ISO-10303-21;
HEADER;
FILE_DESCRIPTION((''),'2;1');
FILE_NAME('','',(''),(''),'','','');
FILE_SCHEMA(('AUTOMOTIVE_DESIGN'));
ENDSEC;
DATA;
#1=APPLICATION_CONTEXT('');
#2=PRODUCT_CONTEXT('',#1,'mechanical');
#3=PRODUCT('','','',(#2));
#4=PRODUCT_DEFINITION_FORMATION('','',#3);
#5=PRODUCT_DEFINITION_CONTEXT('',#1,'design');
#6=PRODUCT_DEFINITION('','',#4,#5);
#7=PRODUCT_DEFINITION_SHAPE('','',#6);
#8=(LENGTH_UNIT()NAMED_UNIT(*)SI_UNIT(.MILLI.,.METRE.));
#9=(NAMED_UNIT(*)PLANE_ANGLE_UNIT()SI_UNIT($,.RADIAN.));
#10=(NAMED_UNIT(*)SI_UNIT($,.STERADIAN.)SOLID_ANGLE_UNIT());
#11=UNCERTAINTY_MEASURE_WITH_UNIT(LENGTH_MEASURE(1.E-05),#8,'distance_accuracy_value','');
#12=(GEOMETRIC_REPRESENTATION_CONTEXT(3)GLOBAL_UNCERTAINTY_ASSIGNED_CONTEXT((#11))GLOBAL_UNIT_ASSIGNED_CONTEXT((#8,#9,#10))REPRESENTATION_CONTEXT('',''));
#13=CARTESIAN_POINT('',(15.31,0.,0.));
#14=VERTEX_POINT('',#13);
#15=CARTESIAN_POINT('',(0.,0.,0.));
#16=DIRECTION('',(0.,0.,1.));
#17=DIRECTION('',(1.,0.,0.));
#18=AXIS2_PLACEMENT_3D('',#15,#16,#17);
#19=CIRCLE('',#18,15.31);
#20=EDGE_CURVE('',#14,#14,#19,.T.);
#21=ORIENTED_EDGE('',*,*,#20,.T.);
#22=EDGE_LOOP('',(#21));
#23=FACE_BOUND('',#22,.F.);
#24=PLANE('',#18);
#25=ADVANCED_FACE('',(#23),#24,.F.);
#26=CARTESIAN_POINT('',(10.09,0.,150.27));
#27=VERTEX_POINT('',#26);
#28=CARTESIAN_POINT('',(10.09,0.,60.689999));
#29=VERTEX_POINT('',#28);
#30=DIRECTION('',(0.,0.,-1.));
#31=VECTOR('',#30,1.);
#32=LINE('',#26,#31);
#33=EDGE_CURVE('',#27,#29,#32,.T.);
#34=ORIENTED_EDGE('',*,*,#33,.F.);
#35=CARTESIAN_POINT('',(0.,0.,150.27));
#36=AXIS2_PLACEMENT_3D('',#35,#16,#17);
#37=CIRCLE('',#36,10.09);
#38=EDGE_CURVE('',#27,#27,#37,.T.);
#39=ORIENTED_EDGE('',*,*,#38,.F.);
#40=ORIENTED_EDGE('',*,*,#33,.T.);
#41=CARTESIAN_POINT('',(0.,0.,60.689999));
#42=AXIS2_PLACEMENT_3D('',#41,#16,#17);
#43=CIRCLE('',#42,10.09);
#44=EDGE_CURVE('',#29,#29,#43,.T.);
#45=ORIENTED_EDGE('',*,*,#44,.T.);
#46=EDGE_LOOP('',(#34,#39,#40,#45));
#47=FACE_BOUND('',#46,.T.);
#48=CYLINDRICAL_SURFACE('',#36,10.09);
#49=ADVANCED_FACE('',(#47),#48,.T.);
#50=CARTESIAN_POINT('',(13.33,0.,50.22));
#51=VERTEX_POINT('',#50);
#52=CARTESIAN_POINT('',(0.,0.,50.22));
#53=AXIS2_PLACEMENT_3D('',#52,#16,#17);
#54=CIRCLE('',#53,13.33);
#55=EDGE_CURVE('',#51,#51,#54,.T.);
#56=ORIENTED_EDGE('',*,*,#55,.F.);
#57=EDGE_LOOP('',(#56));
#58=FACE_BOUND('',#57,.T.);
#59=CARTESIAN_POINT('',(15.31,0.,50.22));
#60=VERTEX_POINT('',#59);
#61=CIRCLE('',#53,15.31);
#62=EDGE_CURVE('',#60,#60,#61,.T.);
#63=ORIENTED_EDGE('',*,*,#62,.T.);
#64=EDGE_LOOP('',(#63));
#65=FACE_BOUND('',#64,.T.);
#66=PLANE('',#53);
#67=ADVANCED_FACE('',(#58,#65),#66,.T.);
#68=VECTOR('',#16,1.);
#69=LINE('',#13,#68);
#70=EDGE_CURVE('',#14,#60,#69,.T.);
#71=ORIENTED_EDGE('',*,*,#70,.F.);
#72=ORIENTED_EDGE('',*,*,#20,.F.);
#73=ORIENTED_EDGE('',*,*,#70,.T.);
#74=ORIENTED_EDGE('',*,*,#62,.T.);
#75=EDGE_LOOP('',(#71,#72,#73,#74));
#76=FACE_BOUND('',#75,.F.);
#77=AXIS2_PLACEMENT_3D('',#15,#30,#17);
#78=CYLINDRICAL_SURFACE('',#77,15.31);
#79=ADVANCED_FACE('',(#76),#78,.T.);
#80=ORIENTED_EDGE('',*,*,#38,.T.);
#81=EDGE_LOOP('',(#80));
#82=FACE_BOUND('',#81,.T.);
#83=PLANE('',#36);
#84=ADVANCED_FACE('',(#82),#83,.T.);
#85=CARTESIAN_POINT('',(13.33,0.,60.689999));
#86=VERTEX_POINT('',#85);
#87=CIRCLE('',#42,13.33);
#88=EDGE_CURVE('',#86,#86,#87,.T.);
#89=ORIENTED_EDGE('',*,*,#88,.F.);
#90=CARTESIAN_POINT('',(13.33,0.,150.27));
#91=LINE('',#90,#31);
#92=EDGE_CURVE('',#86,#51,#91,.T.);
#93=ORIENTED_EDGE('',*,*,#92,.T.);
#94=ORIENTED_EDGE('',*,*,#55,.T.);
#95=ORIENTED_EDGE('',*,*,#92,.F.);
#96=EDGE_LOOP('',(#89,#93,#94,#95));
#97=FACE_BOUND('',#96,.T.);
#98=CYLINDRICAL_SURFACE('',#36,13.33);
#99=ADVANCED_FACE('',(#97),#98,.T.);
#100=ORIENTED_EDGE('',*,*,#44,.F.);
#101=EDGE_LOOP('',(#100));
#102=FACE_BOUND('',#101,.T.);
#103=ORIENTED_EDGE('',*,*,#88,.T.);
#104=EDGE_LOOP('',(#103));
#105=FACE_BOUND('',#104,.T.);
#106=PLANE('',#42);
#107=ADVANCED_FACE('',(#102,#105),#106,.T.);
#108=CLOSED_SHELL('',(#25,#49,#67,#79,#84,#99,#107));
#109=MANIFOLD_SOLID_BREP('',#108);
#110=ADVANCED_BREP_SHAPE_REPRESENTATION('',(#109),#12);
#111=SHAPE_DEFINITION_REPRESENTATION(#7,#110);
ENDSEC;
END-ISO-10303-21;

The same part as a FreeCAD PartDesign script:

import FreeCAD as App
import Part
import Sketcher
Q = App.Units.Quantity

doc = App.newDocument("Part")
body = doc.addObject("PartDesign::Body", "Body")

sketch1 = body.newObject("Sketcher::SketchObject", "Sketch")
sketch1.AttachmentSupport = (doc.getObject("XY_Plane"), [""])
sketch1.MapMode = "FlatFace"
sketch1.addGeometry(Part.Circle(App.Vector(0, 0, 0), App.Vector(0, 0, 1), 15.31), False)
sketch1.addConstraint([
    Sketcher.Constraint("Coincident", 0, 3, -1, 1),
    Sketcher.Constraint("Diameter", 0, Q("30.62 mm")),
])
pad1 = body.newObject("PartDesign::Pad", "Pad")
pad1.Profile = sketch1
pad1.Length = 150.27

sketch2 = body.newObject("Sketcher::SketchObject", "Sketch001")
sketch2.AttachmentSupport = (doc.getObject("XY_Plane"), [""])
sketch2.MapMode = "FlatFace"
sketch2.AttachmentOffset = App.Placement(App.Vector(0, 0, 150.27), App.Rotation())
sketch2.addGeometry([
    Part.Circle(App.Vector(0, 0, 0), App.Vector(0, 0, 1), 15.31),
    Part.Circle(App.Vector(0, 0, 0), App.Vector(0, 0, 1), 13.33),
], False)
sketch2.addConstraint([
    Sketcher.Constraint("Coincident", 0, 3, -1, 1),
    Sketcher.Constraint("Coincident", 1, 3, -1, 1),
    Sketcher.Constraint("Diameter", 0, Q("30.62 mm")),
    Sketcher.Constraint("Diameter", 1, Q("26.66 mm")),
])
pocket1 = body.newObject("PartDesign::Pocket", "Pocket")
pocket1.Profile = sketch2
pocket1.Length = 100.05

sketch3 = body.newObject("Sketcher::SketchObject", "Sketch002")
sketch3.AttachmentSupport = (doc.getObject("XY_Plane"), [""])
sketch3.MapMode = "FlatFace"
sketch3.AttachmentOffset = App.Placement(App.Vector(0, 0, 150.27), App.Rotation())
sketch3.addGeometry([
    Part.Circle(App.Vector(0, 0, 0), App.Vector(0, 0, 1), 13.33),
    Part.Circle(App.Vector(0, 0, 0), App.Vector(0, 0, 1), 10.09),
], False)
sketch3.addConstraint([
    Sketcher.Constraint("Coincident", 0, 3, -1, 1),
    Sketcher.Constraint("Coincident", 1, 3, -1, 1),
    Sketcher.Constraint("Diameter", 0, Q("26.66 mm")),
    Sketcher.Constraint("Diameter", 1, Q("20.18 mm")),
])
pocket2 = body.newObject("PartDesign::Pocket", "Pocket001")
pocket2.Profile = sketch3
pocket2.Length = 89.580001

doc.recompute()
